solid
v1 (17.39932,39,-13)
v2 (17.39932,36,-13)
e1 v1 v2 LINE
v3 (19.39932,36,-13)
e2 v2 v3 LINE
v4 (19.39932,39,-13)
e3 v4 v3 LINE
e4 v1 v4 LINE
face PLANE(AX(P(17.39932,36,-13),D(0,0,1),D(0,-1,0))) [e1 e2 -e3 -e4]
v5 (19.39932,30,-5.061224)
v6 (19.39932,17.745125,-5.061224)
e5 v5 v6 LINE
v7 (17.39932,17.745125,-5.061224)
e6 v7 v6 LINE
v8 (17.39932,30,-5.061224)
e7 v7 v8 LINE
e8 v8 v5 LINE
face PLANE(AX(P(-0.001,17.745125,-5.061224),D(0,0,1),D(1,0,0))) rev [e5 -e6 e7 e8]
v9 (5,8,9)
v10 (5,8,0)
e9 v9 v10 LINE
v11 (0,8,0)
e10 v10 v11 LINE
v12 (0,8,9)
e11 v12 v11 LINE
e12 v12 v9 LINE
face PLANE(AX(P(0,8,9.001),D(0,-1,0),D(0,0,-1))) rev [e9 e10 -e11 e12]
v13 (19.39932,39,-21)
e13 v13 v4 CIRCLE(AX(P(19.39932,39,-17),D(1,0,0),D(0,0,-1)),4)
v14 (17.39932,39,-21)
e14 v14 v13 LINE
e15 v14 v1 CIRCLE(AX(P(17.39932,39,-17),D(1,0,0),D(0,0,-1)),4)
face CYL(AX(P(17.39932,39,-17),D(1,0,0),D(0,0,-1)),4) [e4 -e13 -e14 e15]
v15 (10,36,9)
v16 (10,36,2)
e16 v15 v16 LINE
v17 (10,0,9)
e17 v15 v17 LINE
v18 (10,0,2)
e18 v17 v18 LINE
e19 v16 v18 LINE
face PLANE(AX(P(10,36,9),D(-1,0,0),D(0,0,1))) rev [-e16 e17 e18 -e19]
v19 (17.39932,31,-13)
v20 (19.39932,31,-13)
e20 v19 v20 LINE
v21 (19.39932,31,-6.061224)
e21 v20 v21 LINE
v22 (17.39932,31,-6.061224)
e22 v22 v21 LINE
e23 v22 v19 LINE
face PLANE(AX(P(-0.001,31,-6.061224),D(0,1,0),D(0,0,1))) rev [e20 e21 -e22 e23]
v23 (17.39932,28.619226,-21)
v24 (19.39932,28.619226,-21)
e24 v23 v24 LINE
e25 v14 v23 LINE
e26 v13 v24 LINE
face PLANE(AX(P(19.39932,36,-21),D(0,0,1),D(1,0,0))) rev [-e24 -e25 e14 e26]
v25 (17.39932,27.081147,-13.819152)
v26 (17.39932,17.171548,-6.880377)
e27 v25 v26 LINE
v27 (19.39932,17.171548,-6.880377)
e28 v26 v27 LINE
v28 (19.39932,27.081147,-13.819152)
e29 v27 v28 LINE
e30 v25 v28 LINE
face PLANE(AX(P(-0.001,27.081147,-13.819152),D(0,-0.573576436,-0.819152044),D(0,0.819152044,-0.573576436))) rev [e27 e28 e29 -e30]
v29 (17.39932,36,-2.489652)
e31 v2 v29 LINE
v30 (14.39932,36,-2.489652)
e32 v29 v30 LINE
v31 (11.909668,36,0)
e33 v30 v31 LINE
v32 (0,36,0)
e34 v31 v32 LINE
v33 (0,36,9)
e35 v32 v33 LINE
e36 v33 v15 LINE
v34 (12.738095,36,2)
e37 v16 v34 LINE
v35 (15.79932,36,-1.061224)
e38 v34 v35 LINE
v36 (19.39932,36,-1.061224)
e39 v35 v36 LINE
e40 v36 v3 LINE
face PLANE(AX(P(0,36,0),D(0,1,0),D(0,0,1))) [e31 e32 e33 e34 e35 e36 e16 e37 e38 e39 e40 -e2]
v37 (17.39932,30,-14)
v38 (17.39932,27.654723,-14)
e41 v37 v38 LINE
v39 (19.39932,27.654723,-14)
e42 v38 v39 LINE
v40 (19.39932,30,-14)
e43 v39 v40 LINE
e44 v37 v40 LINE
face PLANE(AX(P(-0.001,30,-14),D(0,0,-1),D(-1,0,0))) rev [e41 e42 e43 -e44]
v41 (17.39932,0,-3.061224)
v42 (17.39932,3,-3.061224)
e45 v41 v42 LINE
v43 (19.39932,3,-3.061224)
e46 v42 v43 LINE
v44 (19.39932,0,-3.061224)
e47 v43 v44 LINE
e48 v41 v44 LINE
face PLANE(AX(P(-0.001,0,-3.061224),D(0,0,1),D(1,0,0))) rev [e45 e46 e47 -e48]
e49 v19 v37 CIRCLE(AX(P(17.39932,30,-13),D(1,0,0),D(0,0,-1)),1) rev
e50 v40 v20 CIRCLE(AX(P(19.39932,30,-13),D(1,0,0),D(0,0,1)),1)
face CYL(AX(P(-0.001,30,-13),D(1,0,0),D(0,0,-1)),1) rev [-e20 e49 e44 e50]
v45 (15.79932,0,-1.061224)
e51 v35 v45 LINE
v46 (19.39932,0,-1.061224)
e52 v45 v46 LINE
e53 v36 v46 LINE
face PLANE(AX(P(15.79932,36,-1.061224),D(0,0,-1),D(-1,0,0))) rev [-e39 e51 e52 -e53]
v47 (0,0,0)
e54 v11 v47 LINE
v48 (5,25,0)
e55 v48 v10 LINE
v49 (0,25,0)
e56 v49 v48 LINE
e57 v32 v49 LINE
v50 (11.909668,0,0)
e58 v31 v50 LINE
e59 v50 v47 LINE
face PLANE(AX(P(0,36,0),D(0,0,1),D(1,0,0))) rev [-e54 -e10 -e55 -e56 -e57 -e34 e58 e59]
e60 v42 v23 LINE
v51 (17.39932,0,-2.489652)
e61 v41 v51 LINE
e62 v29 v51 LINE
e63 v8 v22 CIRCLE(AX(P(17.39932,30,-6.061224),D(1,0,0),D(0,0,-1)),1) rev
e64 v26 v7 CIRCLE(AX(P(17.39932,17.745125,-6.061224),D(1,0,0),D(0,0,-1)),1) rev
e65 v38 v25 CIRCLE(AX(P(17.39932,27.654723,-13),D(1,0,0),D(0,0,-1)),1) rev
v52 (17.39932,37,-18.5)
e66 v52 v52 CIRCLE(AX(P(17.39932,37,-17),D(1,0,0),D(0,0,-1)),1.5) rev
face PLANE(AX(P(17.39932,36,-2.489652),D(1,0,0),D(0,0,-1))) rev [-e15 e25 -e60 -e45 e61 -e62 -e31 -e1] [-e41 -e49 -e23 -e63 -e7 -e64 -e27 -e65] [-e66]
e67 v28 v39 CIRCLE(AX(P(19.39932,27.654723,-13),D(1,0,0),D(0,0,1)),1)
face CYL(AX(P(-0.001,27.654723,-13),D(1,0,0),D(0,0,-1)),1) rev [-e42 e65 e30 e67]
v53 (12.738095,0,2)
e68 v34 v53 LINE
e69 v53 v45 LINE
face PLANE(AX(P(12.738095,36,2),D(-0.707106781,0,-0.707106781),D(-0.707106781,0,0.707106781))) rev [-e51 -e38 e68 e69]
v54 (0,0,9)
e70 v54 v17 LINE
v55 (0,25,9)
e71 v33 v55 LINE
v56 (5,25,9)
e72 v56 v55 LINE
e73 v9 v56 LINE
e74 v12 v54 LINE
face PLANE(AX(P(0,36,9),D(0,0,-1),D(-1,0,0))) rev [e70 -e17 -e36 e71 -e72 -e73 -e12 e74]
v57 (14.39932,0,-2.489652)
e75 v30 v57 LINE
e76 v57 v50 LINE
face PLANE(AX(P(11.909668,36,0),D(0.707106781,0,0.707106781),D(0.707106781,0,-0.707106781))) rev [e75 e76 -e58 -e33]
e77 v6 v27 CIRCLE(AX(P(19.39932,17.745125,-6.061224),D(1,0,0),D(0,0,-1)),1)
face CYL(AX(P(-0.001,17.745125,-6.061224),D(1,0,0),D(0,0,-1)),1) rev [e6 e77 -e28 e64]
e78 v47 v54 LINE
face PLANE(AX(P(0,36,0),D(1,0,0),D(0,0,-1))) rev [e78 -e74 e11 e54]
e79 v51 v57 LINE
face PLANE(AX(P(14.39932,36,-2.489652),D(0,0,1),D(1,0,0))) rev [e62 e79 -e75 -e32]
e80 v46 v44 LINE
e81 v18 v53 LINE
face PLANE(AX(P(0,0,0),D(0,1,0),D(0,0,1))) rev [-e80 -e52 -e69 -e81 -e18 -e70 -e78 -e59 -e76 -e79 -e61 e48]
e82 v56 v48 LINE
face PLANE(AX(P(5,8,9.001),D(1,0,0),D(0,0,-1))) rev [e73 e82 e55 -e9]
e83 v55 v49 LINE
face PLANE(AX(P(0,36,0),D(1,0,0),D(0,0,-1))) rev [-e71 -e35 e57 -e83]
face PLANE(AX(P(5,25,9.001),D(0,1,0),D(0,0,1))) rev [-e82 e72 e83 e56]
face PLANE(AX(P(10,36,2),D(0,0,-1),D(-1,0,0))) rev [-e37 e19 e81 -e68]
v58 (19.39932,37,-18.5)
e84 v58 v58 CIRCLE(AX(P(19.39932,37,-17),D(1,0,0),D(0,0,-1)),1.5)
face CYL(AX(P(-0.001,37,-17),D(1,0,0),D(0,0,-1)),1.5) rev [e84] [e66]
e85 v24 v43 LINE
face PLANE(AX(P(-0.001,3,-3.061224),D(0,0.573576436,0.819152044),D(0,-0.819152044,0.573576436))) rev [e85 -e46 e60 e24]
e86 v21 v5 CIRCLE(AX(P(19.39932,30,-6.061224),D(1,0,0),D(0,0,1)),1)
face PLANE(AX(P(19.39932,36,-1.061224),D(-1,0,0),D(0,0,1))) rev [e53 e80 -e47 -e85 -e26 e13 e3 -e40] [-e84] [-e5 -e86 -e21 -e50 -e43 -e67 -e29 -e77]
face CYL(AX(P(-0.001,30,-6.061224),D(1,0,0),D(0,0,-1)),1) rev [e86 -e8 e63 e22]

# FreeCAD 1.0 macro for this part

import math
import FreeCAD as App
import Part
import Sketcher
from FreeCAD import Vector
Q = App.Units.Quantity

doc = App.newDocument("Part")
body = doc.addObject("PartDesign::Body", "Body")

sketch1 = doc.addObject("Sketcher::SketchObject", "Sketch")
body.addObject(sketch1)
sketch1.AttachmentSupport = (doc.XZ_Plane, [""])
sketch1.MapMode = "FlatFace"
sketch1.addGeometry([
    Part.LineSegment(Vector(11.9, 0, 0), Vector(0, 0, 0)),
    Part.LineSegment(Vector(0, 0, 0), Vector(0, 9, 0)),
    Part.LineSegment(Vector(0, 9, 0), Vector(10, 9, 0)),
    Part.LineSegment(Vector(10, 9, 0), Vector(10, 2, 0)),
    Part.LineSegment(Vector(10, 2, 0), Vector(12.7, 2, 0)),
    Part.LineSegment(Vector(12.7, 2, 0), Vector(15.8, -1.1, 0)),
    Part.LineSegment(Vector(15.8, -1.1, 0), Vector(19.4, -1.1, 0)),
    Part.LineSegment(Vector(19.4, -1.1, 0), Vector(19.4, -21, 0)),
    Part.LineSegment(Vector(19.4, -21, 0), Vector(17.4, -21, 0)),
    Part.LineSegment(Vector(17.4, -21, 0), Vector(17.4, -2.5, 0)),
    Part.LineSegment(Vector(17.4, -2.5, 0), Vector(14.4, -2.5, 0)),
    Part.LineSegment(Vector(14.4, -2.5, 0), Vector(11.9, 0, 0)),
], False)
sketch1.addConstraint([
    Sketcher.Constraint("Coincident", 0, 2, 1, 1),
    Sketcher.Constraint("Coincident", 1, 2, 2, 1),
    Sketcher.Constraint("Coincident", 2, 2, 3, 1),
    Sketcher.Constraint("Coincident", 3, 2, 4, 1),
    Sketcher.Constraint("Coincident", 4, 2, 5, 1),
    Sketcher.Constraint("Coincident", 5, 2, 6, 1),
    Sketcher.Constraint("Coincident", 6, 2, 7, 1),
    Sketcher.Constraint("Coincident", 7, 2, 8, 1),
    Sketcher.Constraint("Coincident", 8, 2, 9, 1),
    Sketcher.Constraint("Coincident", 9, 2, 10, 1),
    Sketcher.Constraint("Coincident", 10, 2, 11, 1),
    Sketcher.Constraint("Coincident", 11, 2, 0, 1),
    Sketcher.Constraint("Horizontal", 0),
    Sketcher.Constraint("Vertical", 1),
    Sketcher.Constraint("Horizontal", 2),
    Sketcher.Constraint("Vertical", 3),
    Sketcher.Constraint("Horizontal", 4),
    Sketcher.Constraint("Horizontal", 6),
    Sketcher.Constraint("Vertical", 7),
    Sketcher.Constraint("Horizontal", 8),
    Sketcher.Constraint("Vertical", 9),
    Sketcher.Constraint("Horizontal", 10),
    Sketcher.Constraint("Coincident", 0, 2, -1, 1),
    Sketcher.Constraint("Parallel", 5, 11),
    Sketcher.Constraint("DistanceX", 2, 1, 2, 2, 10.0),
    Sketcher.Constraint("DistanceX", 8, 2, 8, 1, 2.0),
    Sketcher.Constraint("DistanceX", 10, 2, 10, 1, 3.0),
    Sketcher.Constraint("DistanceY", 1, 1, 1, 2, 9.0),
    Sketcher.Constraint("DistanceY", 3, 2, 3, 1, 7.0),
    Sketcher.Constraint("Angle", 5, Q("-45 deg")),
    Sketcher.Constraint("DistanceX", 6, 1, 6, 2, 3.6),
    Sketcher.Constraint("DistanceY", 7, 2, -1, 1, 21.0),
    Sketcher.Constraint("Distance", 11, 3.520899),
    Sketcher.Constraint("DistanceX", 0, 2, 0, 1, 11.909668),
    Sketcher.Constraint("DistanceX", 4, 1, 4, 2, 2.738095),
])
pad1 = doc.addObject("PartDesign::Pad", "Pad")
body.addObject(pad1)
pad1.Profile = sketch1
pad1.Length = 36
pad1.Reversed = True

sketch2 = doc.addObject("Sketcher::SketchObject", "Sketch001")
body.addObject(sketch2)
sketch2.AttachmentSupport = (doc.YZ_Plane, [""])
sketch2.MapMode = "FlatFace"
sketch2.AttachmentOffset = App.Placement(Vector(0, 0, 19.39932), App.Rotation())
sketch2.addGeometry([
    Part.LineSegment(Vector(3, -3.1, 0), Vector(0, -3.1, 0)),
    Part.LineSegment(Vector(0, -3.1, 0), Vector(0, -21, 0)),
    Part.LineSegment(Vector(0, -21, 0), Vector(28.6, -21, 0)),
    Part.LineSegment(Vector(28.6, -21, 0), Vector(3, -3.1, 0)),
], False)
sketch2.addConstraint([
    Sketcher.Constraint("Coincident", 0, 2, 1, 1),
    Sketcher.Constraint("Coincident", 1, 2, 2, 1),
    Sketcher.Constraint("Coincident", 2, 2, 3, 1),
    Sketcher.Constraint("Coincident", 3, 2, 0, 1),
    Sketcher.Constraint("Horizontal", 0),
    Sketcher.Constraint("Vertical", 1),
    Sketcher.Constraint("Horizontal", 2),
    Sketcher.Constraint("PointOnObject", 0, 2, -2),
    Sketcher.Constraint("DistanceX", 0, 2, 0, 1, 3.0),
    Sketcher.Constraint("Angle", 3, Q("145 deg")),
    Sketcher.Constraint("DistanceY", 1, 2, -1, 1, 21.0),
    Sketcher.Constraint("Distance", 3, 31.275301),
])
pocket1 = doc.addObject("PartDesign::Pocket", "Pocket")
body.addObject(pocket1)
pocket1.Profile = sketch2
pocket1.Type = "UpToFirst"

sketch3 = doc.addObject("Sketcher::SketchObject", "Sketch002")
body.addObject(sketch3)
sketch3.AttachmentSupport = (doc.YZ_Plane, [""])
sketch3.MapMode = "FlatFace"
sketch3.AttachmentOffset = App.Placement(Vector(0, 0, 19.39932), App.Rotation())
sketch3.addGeometry([
    Part.LineSegment(Vector(30, -5.1, 0), Vector(17.7, -5.1, 0)),
    Part.ArcOfCircle(Part.Circle(Vector(17.7, -6.1, 0), Vector(0, 0, 1), 1), math.radians(90), math.radians(235)),
    Part.LineSegment(Vector(17.2, -6.9, 0), Vector(27.1, -13.8, 0)),
    Part.ArcOfCircle(Part.Circle(Vector(27.7, -13, 0), Vector(0, 0, 1), 1), math.radians(-125), math.radians(-90)),
    Part.LineSegment(Vector(27.7, -14, 0), Vector(30, -14, 0)),
    Part.ArcOfCircle(Part.Circle(Vector(30, -13, 0), Vector(0, 0, 1), 1), math.radians(-90), math.radians(0)),
    Part.LineSegment(Vector(31, -13, 0), Vector(31, -6.1, 0)),
    Part.ArcOfCircle(Part.Circle(Vector(30, -6.1, 0), Vector(0, 0, 1), 1), math.radians(0), math.radians(90)),
], False)
sketch3.addConstraint([
    Sketcher.Constraint("Tangent", 0, 2, 1, 1),
    Sketcher.Constraint("Tangent", 1, 2, 2, 1),
    Sketcher.Constraint("Tangent", 2, 2, 3, 1),
    Sketcher.Constraint("Tangent", 3, 2, 4, 1),
    Sketcher.Constraint("Tangent", 4, 2, 5, 1),
    Sketcher.Constraint("Tangent", 5, 2, 6, 1),
    Sketcher.Constraint("Tangent", 6, 2, 7, 1),
    Sketcher.Constraint("Tangent", 7, 2, 0, 1),
    Sketcher.Constraint("Horizontal", 0),
    Sketcher.Constraint("Horizontal", 4),
    Sketcher.Constraint("Vertical", 6),
    Sketcher.Constraint("Equal", 1, 3),
    Sketcher.Constraint("Equal", 3, 5),
    Sketcher.Constraint("Equal", 5, 7),
    Sketcher.Constraint("Radius", 1, 1.0),
    Sketcher.Constraint("Angle", 2, Q("-35 deg")),
    Sketcher.Constraint("DistanceY", 3, 3, -1, 1, 13.0),
    Sketcher.Constraint("DistanceX", -1, 1, 5, 3, 30.0),
    Sketcher.Constraint("DistanceX", 1, 3, 3, 3, 9.909598),
    Sketcher.Constraint("DistanceX", 0, 2, 0, 1, 12.254875),
])
pocket2 = doc.addObject("PartDesign::Pocket", "Pocket001")
body.addObject(pocket2)
pocket2.Profile = sketch3
pocket2.Type = "UpToFirst"

sketch4 = doc.addObject("Sketcher::SketchObject", "Sketch003")
body.addObject(sketch4)
sketch4.AttachmentSupport = (doc.YZ_Plane, [""])
sketch4.MapMode = "FlatFace"
sketch4.AttachmentOffset = App.Placement(Vector(0, 0, 19.39932), App.Rotation())
sketch4.addGeometry([
    Part.LineSegment(Vector(36, -21, 0), Vector(39, -21, 0)),
    Part.ArcOfCircle(Part.Circle(Vector(39, -17, 0), Vector(0, 0, 1), 4), math.radians(-90), math.radians(90)),
    Part.LineSegment(Vector(39, -13, 0), Vector(36, -13, 0)),
    Part.LineSegment(Vector(36, -13, 0), Vector(36, -21, 0)),
], False)
sketch4.addConstraint([
    Sketcher.Constraint("Tangent", 0, 2, 1, 1),
    Sketcher.Constraint("Tangent", 1, 2, 2, 1),
    Sketcher.Constraint("Coincident", 2, 2, 3, 1),
    Sketcher.Constraint("Coincident", 3, 2, 0, 1),
    Sketcher.Constraint("Horizontal", 0),
    Sketcher.Constraint("Horizontal", 2),
    Sketcher.Constraint("Vertical", 3),
    Sketcher.Constraint("Radius", 1, 4.0),
    Sketcher.Constraint("DistanceX", 0, 1, 0, 2, 3.0),
    Sketcher.Constraint("DistanceX", -1, 1, 1, 3, 39.0),
    Sketcher.Constraint("DistanceY", 1, 3, -1, 1, 17.0),
])
pad2 = doc.addObject("PartDesign::Pad", "Pad001")
body.addObject(pad2)
pad2.Profile = sketch4
pad2.Length = 2
pad2.Reversed = True

sketch5 = doc.addObject("Sketcher::SketchObject", "Sketch004")
body.addObject(sketch5)
sketch5.AttachmentSupport = (doc.YZ_Plane, [""])
sketch5.MapMode = "FlatFace"
sketch5.AttachmentOffset = App.Placement(Vector(0, 0, 19.39932), App.Rotation())
sketch5.addGeometry(Part.Circle(Vector(37, -17, 0), Vector(0, 0, 1), 1.5), False)
sketch5.addConstraint([
    Sketcher.Constraint("Diameter", 0, 3.0),
    Sketcher.Constraint("DistanceX", -1, 1, 0, 3, 37.0),
    Sketcher.Constraint("DistanceY", 0, 3, -1, 1, 17.0),
])
pocket3 = doc.addObject("PartDesign::Pocket", "Pocket002")
body.addObject(pocket3)
pocket3.Profile = sketch5
pocket3.Type = "UpToFirst"

sketch6 = doc.addObject("Sketcher::SketchObject", "Sketch005")
body.addObject(sketch6)
sketch6.AttachmentSupport = (doc.XY_Plane, [""])
sketch6.MapMode = "FlatFace"
sketch6.addGeometry([
    Part.LineSegment(Vector(5, 25, 0), Vector(5, 8, 0)),
    Part.LineSegment(Vector(5, 8, 0), Vector(0, 8, 0)),
    Part.LineSegment(Vector(0, 8, 0), Vector(0, 25, 0)),
    Part.LineSegment(Vector(0, 25, 0), Vector(5, 25, 0)),
], False)
sketch6.addConstraint([
    Sketcher.Constraint("Coincident", 0, 2, 1, 1),
    Sketcher.Constraint("Coincident", 1, 2, 2, 1),
    Sketcher.Constraint("Coincident", 2, 2, 3, 1),
    Sketcher.Constraint("Coincident", 3, 2, 0, 1),
    Sketcher.Constraint("Vertical", 0),
    Sketcher.Constraint("Horizontal", 1),
    Sketcher.Constraint("Vertical", 2),
    Sketcher.Constraint("Horizontal", 3),
    Sketcher.Constraint("PointOnObject", 1, 2, -2),
    Sketcher.Constraint("DistanceX", 1, 2, 1, 1, 5.0),
    Sketcher.Constraint("DistanceY", 0, 2, 0, 1, 17.0),
    Sketcher.Constraint("DistanceY", -1, 1, 0, 2, 8.0),
])
pocket4 = doc.addObject("PartDesign::Pocket", "Pocket003")
body.addObject(pocket4)
pocket4.Profile = sketch6
pocket4.Type = "UpToFirst"
pocket4.Reversed = True

doc.recompute()
